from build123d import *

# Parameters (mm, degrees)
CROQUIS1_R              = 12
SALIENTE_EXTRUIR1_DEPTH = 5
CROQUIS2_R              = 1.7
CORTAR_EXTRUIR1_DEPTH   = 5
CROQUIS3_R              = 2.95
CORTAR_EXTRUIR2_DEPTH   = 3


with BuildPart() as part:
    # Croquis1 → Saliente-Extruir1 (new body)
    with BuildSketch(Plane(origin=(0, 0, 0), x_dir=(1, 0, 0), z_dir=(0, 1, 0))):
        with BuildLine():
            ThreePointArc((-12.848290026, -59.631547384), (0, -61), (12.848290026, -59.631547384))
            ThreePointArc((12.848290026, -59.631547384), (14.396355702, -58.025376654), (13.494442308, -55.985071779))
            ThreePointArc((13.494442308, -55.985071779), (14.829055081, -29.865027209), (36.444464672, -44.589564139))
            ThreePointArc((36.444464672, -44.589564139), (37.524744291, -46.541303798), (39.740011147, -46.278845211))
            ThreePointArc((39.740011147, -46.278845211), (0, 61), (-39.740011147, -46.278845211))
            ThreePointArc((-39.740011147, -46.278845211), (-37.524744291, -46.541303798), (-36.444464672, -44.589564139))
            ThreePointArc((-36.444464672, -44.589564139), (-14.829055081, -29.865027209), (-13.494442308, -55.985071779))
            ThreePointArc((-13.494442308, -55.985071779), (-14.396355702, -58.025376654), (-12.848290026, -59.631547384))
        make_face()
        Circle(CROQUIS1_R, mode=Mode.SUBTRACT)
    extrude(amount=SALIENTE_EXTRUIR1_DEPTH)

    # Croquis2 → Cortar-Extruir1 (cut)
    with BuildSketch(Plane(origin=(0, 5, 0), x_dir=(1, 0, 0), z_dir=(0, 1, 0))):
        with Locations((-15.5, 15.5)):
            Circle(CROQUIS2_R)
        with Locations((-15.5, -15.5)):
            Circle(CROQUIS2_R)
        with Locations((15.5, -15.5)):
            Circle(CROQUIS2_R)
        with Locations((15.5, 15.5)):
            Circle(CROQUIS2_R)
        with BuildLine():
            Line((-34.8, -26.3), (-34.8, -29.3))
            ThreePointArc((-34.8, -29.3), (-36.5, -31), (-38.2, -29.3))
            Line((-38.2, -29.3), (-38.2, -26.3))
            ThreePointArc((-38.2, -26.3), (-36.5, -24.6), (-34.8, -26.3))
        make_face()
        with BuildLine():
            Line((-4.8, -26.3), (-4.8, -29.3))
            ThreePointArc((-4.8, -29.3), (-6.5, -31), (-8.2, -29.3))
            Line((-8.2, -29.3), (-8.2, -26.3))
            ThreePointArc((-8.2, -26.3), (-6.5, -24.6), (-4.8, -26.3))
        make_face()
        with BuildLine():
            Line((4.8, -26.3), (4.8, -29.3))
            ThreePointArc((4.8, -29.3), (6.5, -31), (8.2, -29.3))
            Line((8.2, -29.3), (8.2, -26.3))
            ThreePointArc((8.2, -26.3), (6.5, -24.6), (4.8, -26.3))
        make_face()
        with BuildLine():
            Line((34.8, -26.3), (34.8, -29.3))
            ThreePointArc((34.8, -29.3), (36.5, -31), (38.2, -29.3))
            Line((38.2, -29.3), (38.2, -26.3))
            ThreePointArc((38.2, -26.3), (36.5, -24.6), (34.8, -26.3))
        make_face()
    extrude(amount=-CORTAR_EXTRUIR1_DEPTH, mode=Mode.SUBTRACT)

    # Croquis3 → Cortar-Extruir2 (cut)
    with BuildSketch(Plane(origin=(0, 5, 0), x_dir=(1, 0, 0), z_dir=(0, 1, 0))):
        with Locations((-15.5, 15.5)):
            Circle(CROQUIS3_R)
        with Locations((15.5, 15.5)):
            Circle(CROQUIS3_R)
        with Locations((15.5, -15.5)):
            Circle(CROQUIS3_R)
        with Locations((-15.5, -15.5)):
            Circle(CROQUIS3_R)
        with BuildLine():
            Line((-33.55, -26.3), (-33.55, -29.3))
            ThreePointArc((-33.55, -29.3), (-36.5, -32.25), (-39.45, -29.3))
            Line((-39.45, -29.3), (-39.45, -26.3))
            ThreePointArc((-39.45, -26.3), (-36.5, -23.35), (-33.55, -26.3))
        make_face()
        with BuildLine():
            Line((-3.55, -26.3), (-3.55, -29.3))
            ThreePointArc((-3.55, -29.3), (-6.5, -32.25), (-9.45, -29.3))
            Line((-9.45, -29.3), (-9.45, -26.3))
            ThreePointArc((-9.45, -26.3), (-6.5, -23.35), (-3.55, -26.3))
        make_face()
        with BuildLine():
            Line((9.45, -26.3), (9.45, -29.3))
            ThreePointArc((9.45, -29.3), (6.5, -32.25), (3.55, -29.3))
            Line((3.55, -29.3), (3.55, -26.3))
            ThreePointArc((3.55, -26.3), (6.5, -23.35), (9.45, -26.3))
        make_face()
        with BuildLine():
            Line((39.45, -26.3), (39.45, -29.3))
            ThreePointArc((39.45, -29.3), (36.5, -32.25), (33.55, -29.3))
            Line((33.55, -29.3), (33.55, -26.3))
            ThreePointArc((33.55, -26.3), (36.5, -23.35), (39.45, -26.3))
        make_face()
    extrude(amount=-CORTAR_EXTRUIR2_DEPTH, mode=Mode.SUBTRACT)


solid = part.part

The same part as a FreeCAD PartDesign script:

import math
import FreeCAD as App
import Part
import Sketcher

doc = App.newDocument("Part")
body = doc.addObject("PartDesign::Body", "Body")

sketch1 = body.newObject("Sketcher::SketchObject", "Sketch")
sketch1.AttachmentSupport = (doc.getObject("XZ_Plane"), [""])
sketch1.MapMode = "FlatFace"
sketch1.addGeometry([
    Part.ArcOfCircle(Part.Circle(App.Vector(0, 0, 0), App.Vector(0, 0, 1), 61), math.radians(78), math.radians(102)),
    Part.ArcOfCircle(Part.Circle(App.Vector(12.4, 57.7, 0), App.Vector(0, 0, 1), 2), math.radians(-58), math.radians(78)),
    Part.ArcOfCircle(Part.Circle(App.Vector(21.5, 43.3, 0), App.Vector(0, 0, 1), 15), math.radians(122), math.radians(365)),
    Part.ArcOfCircle(Part.Circle(App.Vector(38.4, 44.8, 0), App.Vector(0, 0, 1), 2), math.radians(49), math.radians(185)),
    Part.ArcOfCircle(Part.Circle(App.Vector(0, 0, 0), App.Vector(0, 0, 1), 61), math.radians(131), math.radians(409)),
    Part.ArcOfCircle(Part.Circle(App.Vector(-38.4, 44.8, 0), App.Vector(0, 0, 1), 2), math.radians(-5), math.radians(131)),
    Part.ArcOfCircle(Part.Circle(App.Vector(-21.5, 43.3, 0), App.Vector(0, 0, 1), 15), math.radians(175), math.radians(418)),
    Part.ArcOfCircle(Part.Circle(App.Vector(-12.4, 57.7, 0), App.Vector(0, 0, 1), 2), math.radians(102), math.radians(238)),
    Part.Circle(App.Vector(0, 0, 0), App.Vector(0, 0, 1), 12),
], False)
sketch1.addConstraint([
    Sketcher.Constraint("Tangent", 0, 1, 1, 2),
    Sketcher.Constraint("Tangent", 1, 1, 2, 1),
    Sketcher.Constraint("Tangent", 2, 2, 3, 2),
    Sketcher.Constraint("Tangent", 3, 1, 4, 2),
    Sketcher.Constraint("Tangent", 4, 1, 5, 2),
    Sketcher.Constraint("Tangent", 5, 1, 6, 1),
    Sketcher.Constraint("Tangent", 6, 2, 7, 2),
    Sketcher.Constraint("Tangent", 7, 1, 0, 2),
    Sketcher.Constraint("Coincident", 0, 3, -1, 1),
    Sketcher.Constraint("Coincident", 4, 3, -1, 1),
    Sketcher.Constraint("Coincident", 8, 3, -1, 1),
    Sketcher.Constraint("Equal", 1, 3),
    Sketcher.Constraint("Equal", 0, 4),
    Sketcher.Constraint("Equal", 3, 5),
    Sketcher.Constraint("Equal", 2, 6),
    Sketcher.Constraint("Equal", 5, 7),
    Sketcher.Constraint("Symmetric", 2, 3, 6, 3, -2),
    Sketcher.Constraint("Diameter", 8, 24.0),
    Sketcher.Constraint("Radius", 0, 61.0),
    Sketcher.Constraint("Radius", 1, 2.0),
    Sketcher.Constraint("Radius", 2, 15.0),
    Sketcher.Constraint("DistanceX", 6, 3, 2, 3, 43.0),
    Sketcher.Constraint("DistanceY", -1, 1, 2, 3, 43.3),
])
pad1 = body.newObject("PartDesign::Pad", "Pad")
pad1.Profile = sketch1
pad1.Length = 5
pad1.Reversed = True

sketch2 = body.newObject("Sketcher::SketchObject", "Sketch001")
sketch2.AttachmentSupport = (doc.getObject("XZ_Plane"), [""])
sketch2.MapMode = "FlatFace"
sketch2.AttachmentOffset = App.Placement(App.Vector(0, 0, -5), App.Rotation())
sketch2.addGeometry([
    Part.Circle(App.Vector(-15.5, -15.5, 0), App.Vector(0, 0, 1), 1.7),
    Part.Circle(App.Vector(-15.5, 15.5, 0), App.Vector(0, 0, 1), 1.7),
    Part.Circle(App.Vector(15.5, 15.5, 0), App.Vector(0, 0, 1), 1.7),
    Part.Circle(App.Vector(15.5, -15.5, 0), App.Vector(0, 0, 1), 1.7),
    Part.LineSegment(App.Vector(-34.8, 29.3, 0), App.Vector(-34.8, 26.3, 0)),
    Part.ArcOfCircle(Part.Circle(App.Vector(-36.5, 26.3, 0), App.Vector(0, 0, 1), 1.7), math.radians(180), math.radians(360)),
    Part.LineSegment(App.Vector(-38.2, 26.3, 0), App.Vector(-38.2, 29.3, 0)),
    Part.ArcOfCircle(Part.Circle(App.Vector(-36.5, 29.3, 0), App.Vector(0, 0, 1), 1.7), math.radians(0), math.radians(180)),
    Part.LineSegment(App.Vector(-4.8, 29.3, 0), App.Vector(-4.8, 26.3, 0)),
    Part.ArcOfCircle(Part.Circle(App.Vector(-6.5, 26.3, 0), App.Vector(0, 0, 1), 1.7), math.radians(180), math.radians(360)),
    Part.LineSegment(App.Vector(-8.2, 26.3, 0), App.Vector(-8.2, 29.3, 0)),
    Part.ArcOfCircle(Part.Circle(App.Vector(-6.5, 29.3, 0), App.Vector(0, 0, 1), 1.7), math.radians(0), math.radians(180)),
    Part.LineSegment(App.Vector(4.8, 26.3, 0), App.Vector(4.8, 29.3, 0)),
    Part.ArcOfCircle(Part.Circle(App.Vector(6.5, 29.3, 0), App.Vector(0, 0, 1), 1.7), math.radians(0), math.radians(180)),
    Part.LineSegment(App.Vector(8.2, 29.3, 0), App.Vector(8.2, 26.3, 0)),
    Part.ArcOfCircle(Part.Circle(App.Vector(6.5, 26.3, 0), App.Vector(0, 0, 1), 1.7), math.radians(180), math.radians(360)),
    Part.LineSegment(App.Vector(34.8, 26.3, 0), App.Vector(34.8, 29.3, 0)),
    Part.ArcOfCircle(Part.Circle(App.Vector(36.5, 29.3, 0), App.Vector(0, 0, 1), 1.7), math.radians(0), math.radians(180)),
    Part.LineSegment(App.Vector(38.2, 29.3, 0), App.Vector(38.2, 26.3, 0)),
    Part.ArcOfCircle(Part.Circle(App.Vector(36.5, 26.3, 0), App.Vector(0, 0, 1), 1.7), math.radians(180), math.radians(360)),
], False)
sketch2.addConstraint([
    Sketcher.Constraint("Tangent", 4, 2, 5, 2),
    Sketcher.Constraint("Tangent", 5, 1, 6, 1),
    Sketcher.Constraint("Tangent", 6, 2, 7, 2),
    Sketcher.Constraint("Tangent", 7, 1, 4, 1),
    Sketcher.Constraint("Tangent", 8, 2, 9, 2),
    Sketcher.Constraint("Tangent", 9, 1, 10, 1),
    Sketcher.Constraint("Tangent", 10, 2, 11, 2),
    Sketcher.Constraint("Tangent", 11, 1, 8, 1),
    Sketcher.Constraint("Tangent", 12, 2, 13, 2),
    Sketcher.Constraint("Tangent", 13, 1, 14, 1),
    Sketcher.Constraint("Tangent", 14, 2, 15, 2),
    Sketcher.Constraint("Tangent", 15, 1, 12, 1),
    Sketcher.Constraint("Tangent", 16, 2, 17, 2),
    Sketcher.Constraint("Tangent", 17, 1, 18, 1),
    Sketcher.Constraint("Tangent", 18, 2, 19, 2),
    Sketcher.Constraint("Tangent", 19, 1, 16, 1),
    Sketcher.Constraint("Vertical", 4),
    Sketcher.Constraint("Vertical", 6),
    Sketcher.Constraint("Vertical", 8),
    Sketcher.Constraint("Vertical", 10),
    Sketcher.Constraint("Vertical", 12),
    Sketcher.Constraint("Vertical", 14),
    Sketcher.Constraint("Vertical", 16),
    Sketcher.Constraint("Vertical", 18),
    Sketcher.Constraint("Equal", 0, 1),
    Sketcher.Constraint("Equal", 1, 2),
    Sketcher.Constraint("Equal", 2, 3),
    Sketcher.Constraint("Equal", 3, 5),
    Sketcher.Constraint("Equal", 7, 9),
    Sketcher.Constraint("Equal", 11, 13),
    Sketcher.Constraint("Equal", 15, 17),
    Sketcher.Constraint("Symmetric", 0, 3, 2, 3, -1, 1),
    Sketcher.Constraint("Symmetric", 1, 3, 3, 3, -1, 1),
    Sketcher.Constraint("Symmetric", 1, 3, 2, 3, -2),
    Sketcher.Constraint("Symmetric", 11, 3, 13, 3, -2),
    Sketcher.Constraint("Symmetric", 7, 3, 17, 3, -2),
    Sketcher.Constraint("Horizontal", 5, 3, 9, 3),
    Sketcher.Constraint("Horizontal", 7, 3, 11, 3),
    Sketcher.Constraint("Horizontal", 9, 3, 15, 3),
    Sketcher.Constraint("Horizontal", 15, 3, 19, 3),
    Sketcher.Constraint("Diameter", 0, 3.4),
    Sketcher.Constraint("DistanceY", 4, 2, 4, 1, 3.0),
    Sketcher.Constraint("DistanceY", 0, 3, 1, 3, 31.0),
    Sketcher.Constraint("DistanceX", 1, 3, 2, 3, 31.0),
    Sketcher.Constraint("DistanceX", 5, 3, 1, 3, 21.0),
    Sketcher.Constraint("DistanceX", 1, 3, 9, 3, 9.0),
    Sketcher.Constraint("DistanceY", -1, 1, 5, 3, 26.3),
])
pocket1 = body.newObject("PartDesign::Pocket", "Pocket")
pocket1.Profile = sketch2
pocket1.Length = 5
pocket1.Reversed = True

sketch3 = body.newObject("Sketcher::SketchObject", "Sketch002")
sketch3.AttachmentSupport = (doc.getObject("XZ_Plane"), [""])
sketch3.MapMode = "FlatFace"
sketch3.AttachmentOffset = App.Placement(App.Vector(0, 0, -5), App.Rotation())
sketch3.addGeometry([
    Part.Circle(App.Vector(-15.5, -15.5, 0), App.Vector(0, 0, 1), 3),
    Part.Circle(App.Vector(15.5, -15.5, 0), App.Vector(0, 0, 1), 3),
    Part.Circle(App.Vector(15.5, 15.5, 0), App.Vector(0, 0, 1), 3),
    Part.Circle(App.Vector(-15.5, 15.5, 0), App.Vector(0, 0, 1), 3),
    Part.LineSegment(App.Vector(-33.5, 29.3, 0), App.Vector(-33.5, 26.3, 0)),
    Part.ArcOfCircle(Part.Circle(App.Vector(-36.5, 26.3, 0), App.Vector(0, 0, 1), 3), math.radians(180), math.radians(360)),
    Part.LineSegment(App.Vector(-39.5, 26.3, 0), App.Vector(-39.5, 29.3, 0)),
    Part.ArcOfCircle(Part.Circle(App.Vector(-36.5, 29.3, 0), App.Vector(0, 0, 1), 3), math.radians(0), math.radians(180)),
    Part.LineSegment(App.Vector(-3.5, 29.3, 0), App.Vector(-3.5, 26.3, 0)),
    Part.ArcOfCircle(Part.Circle(App.Vector(-6.5, 26.3, 0), App.Vector(0, 0, 1), 3), math.radians(180), math.radians(360)),
    Part.LineSegment(App.Vector(-9.4, 26.3, 0), App.Vector(-9.4, 29.3, 0)),
    Part.ArcOfCircle(Part.Circle(App.Vector(-6.5, 29.3, 0), App.Vector(0, 0, 1), 3), math.radians(0), math.radians(180)),
    Part.LineSegment(App.Vector(9.4, 29.3, 0), App.Vector(9.4, 26.3, 0)),
    Part.ArcOfCircle(Part.Circle(App.Vector(6.5, 26.3, 0), App.Vector(0, 0, 1), 3), math.radians(180), math.radians(360)),
    Part.LineSegment(App.Vector(3.5, 26.3, 0), App.Vector(3.5, 29.3, 0)),
    Part.ArcOfCircle(Part.Circle(App.Vector(6.5, 29.3, 0), App.Vector(0, 0, 1), 3), math.radians(0), math.radians(180)),
    Part.LineSegment(App.Vector(39.5, 29.3, 0), App.Vector(39.5, 26.3, 0)),
    Part.ArcOfCircle(Part.Circle(App.Vector(36.5, 26.3, 0), App.Vector(0, 0, 1), 3), math.radians(180), math.radians(360)),
    Part.LineSegment(App.Vector(33.5, 26.3, 0), App.Vector(33.5, 29.3, 0)),
    Part.ArcOfCircle(Part.Circle(App.Vector(36.5, 29.3, 0), App.Vector(0, 0, 1), 3), math.radians(0), math.radians(180)),
], False)
sketch3.addConstraint([
    Sketcher.Constraint("Tangent", 4, 2, 5, 2),
    Sketcher.Constraint("Tangent", 5, 1, 6, 1),
    Sketcher.Constraint("Tangent", 6, 2, 7, 2),
    Sketcher.Constraint("Tangent", 7, 1, 4, 1),
    Sketcher.Constraint("Tangent", 8, 2, 9, 2),
    Sketcher.Constraint("Tangent", 9, 1, 10, 1),
    Sketcher.Constraint("Tangent", 10, 2, 11, 2),
    Sketcher.Constraint("Tangent", 11, 1, 8, 1),
    Sketcher.Constraint("Tangent", 12, 2, 13, 2),
    Sketcher.Constraint("Tangent", 13, 1, 14, 1),
    Sketcher.Constraint("Tangent", 14, 2, 15, 2),
    Sketcher.Constraint("Tangent", 15, 1, 12, 1),
    Sketcher.Constraint("Tangent", 16, 2, 17, 2),
    Sketcher.Constraint("Tangent", 17, 1, 18, 1),
    Sketcher.Constraint("Tangent", 18, 2, 19, 2),
    Sketcher.Constraint("Tangent", 19, 1, 16, 1),
    Sketcher.Constraint("Vertical", 4),
    Sketcher.Constraint("Vertical", 6),
    Sketcher.Constraint("Vertical", 8),
    Sketcher.Constraint("Vertical", 10),
    Sketcher.Constraint("Vertical", 12),
    Sketcher.Constraint("Vertical", 14),
    Sketcher.Constraint("Vertical", 16),
    Sketcher.Constraint("Vertical", 18),
    Sketcher.Constraint("Equal", 0, 1),
    Sketcher.Constraint("Equal", 1, 2),
    Sketcher.Constraint("Equal", 2, 3),
    Sketcher.Constraint("Equal", 3, 5),
    Sketcher.Constraint("Equal", 7, 9),
    Sketcher.Constraint("Equal", 11, 13),
    Sketcher.Constraint("Equal", 15, 17),
    Sketcher.Constraint("Symmetric", 0, 3, 2, 3, -1, 1),
    Sketcher.Constraint("Symmetric", 1, 3, 3, 3, -1, 1),
    Sketcher.Constraint("Symmetric", 0, 3, 1, 3, -2),
    Sketcher.Constraint("Symmetric", 9, 3, 13, 3, -2),
    Sketcher.Constraint("Symmetric", 5, 3, 17, 3, -2),
    Sketcher.Constraint("Horizontal", 5, 3, 9, 3),
    Sketcher.Constraint("Horizontal", 7, 3, 11, 3),
    Sketcher.Constraint("Horizontal", 11, 3, 15, 3),
    Sketcher.Constraint("Horizontal", 15, 3, 19, 3),
    Sketcher.Constraint("Diameter", 0, 5.9),
    Sketcher.Constraint("DistanceY", 4, 2, 4, 1, 3.0),
    Sketcher.Constraint("DistanceX", 0, 3, 1, 3, 31.0),
    Sketcher.Constraint("DistanceY", 1, 3, 2, 3, 31.0),
    Sketcher.Constraint("DistanceX", 5, 3, 3, 3, 21.0),
    Sketcher.Constraint("DistanceX", 3, 3, 9, 3, 9.0),
    Sketcher.Constraint("DistanceY", -1, 1, 5, 3, 26.3),
])
pocket2 = body.newObject("PartDesign::Pocket", "Pocket001")
pocket2.Profile = sketch3
pocket2.Length = 3
pocket2.Reversed = True

doc.recompute()
